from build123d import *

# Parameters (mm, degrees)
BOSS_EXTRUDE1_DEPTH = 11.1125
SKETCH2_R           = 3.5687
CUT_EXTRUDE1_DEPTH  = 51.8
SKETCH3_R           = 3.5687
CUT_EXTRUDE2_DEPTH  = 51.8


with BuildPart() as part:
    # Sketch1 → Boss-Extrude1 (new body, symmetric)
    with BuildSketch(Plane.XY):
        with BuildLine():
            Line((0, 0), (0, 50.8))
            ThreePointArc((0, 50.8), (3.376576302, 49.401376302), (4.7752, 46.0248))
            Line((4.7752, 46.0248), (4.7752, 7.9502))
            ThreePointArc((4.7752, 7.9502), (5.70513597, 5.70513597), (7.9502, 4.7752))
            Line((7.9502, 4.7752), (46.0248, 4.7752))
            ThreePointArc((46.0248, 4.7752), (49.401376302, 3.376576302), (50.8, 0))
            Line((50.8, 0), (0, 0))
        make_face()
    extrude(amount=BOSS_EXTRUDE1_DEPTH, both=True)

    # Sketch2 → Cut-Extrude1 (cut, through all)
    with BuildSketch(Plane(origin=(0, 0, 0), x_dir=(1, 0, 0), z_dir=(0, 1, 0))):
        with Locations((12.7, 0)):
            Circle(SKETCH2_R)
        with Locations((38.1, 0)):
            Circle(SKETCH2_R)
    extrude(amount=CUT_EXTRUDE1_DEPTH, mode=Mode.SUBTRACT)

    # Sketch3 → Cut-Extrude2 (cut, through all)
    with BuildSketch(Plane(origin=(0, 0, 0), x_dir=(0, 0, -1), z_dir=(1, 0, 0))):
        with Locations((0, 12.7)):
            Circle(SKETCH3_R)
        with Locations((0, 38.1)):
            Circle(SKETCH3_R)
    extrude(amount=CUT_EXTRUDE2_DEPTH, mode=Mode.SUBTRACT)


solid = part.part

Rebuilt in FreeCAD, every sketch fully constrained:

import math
import FreeCAD as App
import Part
import Sketcher

V = App.Vector
Q = App.Units.Quantity

doc = App.newDocument("Part")
body = doc.addObject("PartDesign::Body", "Body")

sketch1 = body.newObject("Sketcher::SketchObject", "Sketch")
sketch1.AttachmentSupport = (doc.getObject("XY_Plane"), [""])
sketch1.MapMode = "FlatFace"
sketch1.addGeometry([
    Part.LineSegment(V(0, 50.8, 0), V(0, 0, 0)),
    Part.LineSegment(V(0, 0, 0), V(50.8, 0, 0)),
    Part.ArcOfCircle(Part.Circle(V(46, 0, 0), V(0, 0, 1), 4.8), math.radians(0), math.radians(90)),
    Part.LineSegment(V(46, 4.8, 0), V(8, 4.8, 0)),
    Part.ArcOfCircle(Part.Circle(V(8, 8, 0), V(0, 0, 1), 3.2), math.radians(-180), math.radians(-90)),
    Part.LineSegment(V(4.8, 8, 0), V(4.8, 46, 0)),
    Part.ArcOfCircle(Part.Circle(V(0, 46, 0), V(0, 0, 1), 4.8), math.radians(0), math.radians(90)),
], False)
sketch1.addConstraint([
    Sketcher.Constraint("Coincident", 0, 2, 1, 1),
    Sketcher.Constraint("Coincident", 1, 2, 2, 1),
    Sketcher.Constraint("Tangent", 2, 2, 3, 1),
    Sketcher.Constraint("Tangent", 3, 2, 4, 2),
    Sketcher.Constraint("Tangent", 4, 1, 5, 1),
    Sketcher.Constraint("Tangent", 5, 2, 6, 1),
    Sketcher.Constraint("Coincident", 6, 2, 0, 1),
    Sketcher.Constraint("Vertical", 0),
    Sketcher.Constraint("Horizontal", 1),
    Sketcher.Constraint("Horizontal", 3),
    Sketcher.Constraint("Vertical", 5),
    Sketcher.Constraint("Coincident", 0, 2, -1, 1),
    Sketcher.Constraint("Equal", 2, 6),
    Sketcher.Constraint("PointOnObject", 2, 3, -1),
    Sketcher.Constraint("PointOnObject", 6, 3, -2),
    Sketcher.Constraint("Equal", 1, 0),
    Sketcher.Constraint("DistanceX", 1, 1, 1, 2, Q("2 in")),
    Sketcher.Constraint("Radius", 2, Q("0.188 in")),
    Sketcher.Constraint("Radius", 4, Q("0.125 in")),
])
pad1 = body.newObject("PartDesign::Pad", "Pad")
pad1.Profile = sketch1
pad1.Length = Q("0.875 in")
pad1.Midplane = True

sketch2 = body.newObject("Sketcher::SketchObject", "Sketch001")
sketch2.AttachmentSupport = (doc.getObject("XZ_Plane"), [""])
sketch2.MapMode = "FlatFace"
sketch2.addGeometry([
    Part.Circle(V(12.7, 0, 0), V(0, 0, 1), 3.6),
    Part.Circle(V(38.1, 0, 0), V(0, 0, 1), 3.6),
], False)
sketch2.addConstraint([
    Sketcher.Constraint("Equal", 0, 1),
    Sketcher.Constraint("PointOnObject", 0, 3, -1),
    Sketcher.Constraint("PointOnObject", 1, 3, -1),
    Sketcher.Constraint("Diameter", 0, Q("0.281 in")),
    Sketcher.Constraint("DistanceX", 0, 3, 1, 3, Q("1 in")),
    Sketcher.Constraint("DistanceX", -1, 1, 0, 3, Q("0.5 in")),
])
pocket1 = body.newObject("PartDesign::Pocket", "Pocket")
pocket1.Profile = sketch2
pocket1.Type = "ThroughAll"

sketch3 = body.newObject("Sketcher::SketchObject", "Sketch002")
sketch3.AttachmentSupport = (doc.getObject("YZ_Plane"), [""])
sketch3.MapMode = "FlatFace"
sketch3.addGeometry([
    Part.Circle(V(12.7, 0, 0), V(0, 0, 1), 3.6),
    Part.Circle(V(38.1, 0, 0), V(0, 0, 1), 3.6),
], False)
sketch3.addConstraint([
    Sketcher.Constraint("Equal", 0, 1),
    Sketcher.Constraint("PointOnObject", 0, 3, -1),
    Sketcher.Constraint("PointOnObject", 1, 3, -1),
    Sketcher.Constraint("Diameter", 0, Q("0.281 in")),
    Sketcher.Constraint("DistanceX", 0, 3, 1, 3, Q("1 in")),
    Sketcher.Constraint("DistanceX", -1, 1, 0, 3, Q("0.5 in")),
])
pocket2 = body.newObject("PartDesign::Pocket", "Pocket001")
pocket2.Profile = sketch3
pocket2.Type = "ThroughAll"
pocket2.Reversed = True

doc.recompute()
